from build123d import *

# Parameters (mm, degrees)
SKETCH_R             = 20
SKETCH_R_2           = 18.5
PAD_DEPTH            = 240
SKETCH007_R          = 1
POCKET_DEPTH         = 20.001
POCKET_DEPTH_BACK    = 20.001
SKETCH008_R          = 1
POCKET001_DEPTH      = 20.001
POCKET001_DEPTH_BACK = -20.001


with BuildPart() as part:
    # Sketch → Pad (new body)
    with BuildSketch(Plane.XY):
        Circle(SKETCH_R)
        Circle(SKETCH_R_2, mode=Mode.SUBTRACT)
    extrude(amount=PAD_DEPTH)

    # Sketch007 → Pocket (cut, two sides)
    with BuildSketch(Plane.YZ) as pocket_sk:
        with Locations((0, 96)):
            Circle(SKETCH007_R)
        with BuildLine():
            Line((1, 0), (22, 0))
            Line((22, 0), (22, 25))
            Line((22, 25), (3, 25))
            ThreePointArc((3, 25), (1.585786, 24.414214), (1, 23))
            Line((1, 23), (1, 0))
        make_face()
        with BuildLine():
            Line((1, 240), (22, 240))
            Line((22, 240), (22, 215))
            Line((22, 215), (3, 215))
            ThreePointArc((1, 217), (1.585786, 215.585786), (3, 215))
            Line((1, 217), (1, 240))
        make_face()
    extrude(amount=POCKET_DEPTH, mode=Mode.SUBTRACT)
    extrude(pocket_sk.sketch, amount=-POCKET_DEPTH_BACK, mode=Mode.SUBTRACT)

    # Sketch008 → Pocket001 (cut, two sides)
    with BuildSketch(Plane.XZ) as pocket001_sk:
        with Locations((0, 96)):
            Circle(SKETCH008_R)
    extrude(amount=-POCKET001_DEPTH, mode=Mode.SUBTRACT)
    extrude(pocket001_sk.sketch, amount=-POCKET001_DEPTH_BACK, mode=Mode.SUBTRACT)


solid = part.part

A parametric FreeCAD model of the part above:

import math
import FreeCAD as App
import Part
import Sketcher

V = App.Vector

doc = App.newDocument("Part")
body = doc.addObject("PartDesign::Body", "Body")

# Sketch on XY plane
sketch1 = doc.addObject("Sketcher::SketchObject", "Sketch")
body.addObject(sketch1)
sketch1.AttachmentSupport = (doc.XY_Plane, [""])
sketch1.MapMode = "FlatFace"
sketch1.addGeometry(Part.Circle(V(0, 0, 0), V(0, 0, 1), 20), False)
sketch1.addGeometry(Part.Circle(V(0, 0, 0), V(0, 0, 1), 18), False)
sketch1.addConstraint(Sketcher.Constraint("Coincident", 0, 3, -1, 1))
sketch1.addConstraint(Sketcher.Constraint("Coincident", 1, 3, -1, 1))
sketch1.addConstraint(Sketcher.Constraint("Diameter", 0, 40.0))
sketch1.addConstraint(Sketcher.Constraint("Diameter", 1, 37.0))
pad1 = doc.addObject("PartDesign::Pad", "Pad")
body.addObject(pad1)
pad1.Profile = sketch1
pad1.Length = 240

# Sketch on YZ plane
sketch2 = doc.addObject("Sketcher::SketchObject", "Sketch001")
body.addObject(sketch2)
sketch2.AttachmentSupport = (doc.YZ_Plane, [""])
sketch2.MapMode = "FlatFace"
sketch2.addGeometry(Part.Circle(V(0, 96, 0), V(0, 0, 1), 1), False)
sketch2.addGeometry(Part.LineSegment(V(1, 0, 0), V(22, 0, 0)), False)
sketch2.addGeometry(Part.LineSegment(V(22, 0, 0), V(22, 25, 0)), False)
sketch2.addGeometry(Part.LineSegment(V(22, 25, 0), V(3, 25, 0)), False)
sketch2.addGeometry(Part.ArcOfCircle(Part.Circle(V(3, 23, 0), V(0, 0, 1), 2), math.radians(90), math.radians(180)), False)
sketch2.addGeometry(Part.LineSegment(V(1, 23, 0), V(1, 0, 0)), False)
sketch2.addGeometry(Part.LineSegment(V(22, 240, 0), V(1, 240, 0)), False)
sketch2.addGeometry(Part.LineSegment(V(1, 240, 0), V(1, 217, 0)), False)
sketch2.addGeometry(Part.ArcOfCircle(Part.Circle(V(3, 217, 0), V(0, 0, 1), 2), math.radians(180), math.radians(270)), False)
sketch2.addGeometry(Part.LineSegment(V(3, 215, 0), V(22, 215, 0)), False)
sketch2.addGeometry(Part.LineSegment(V(22, 215, 0), V(22, 240, 0)), False)
sketch2.addConstraint(Sketcher.Constraint("Coincident", 1, 2, 2, 1))
sketch2.addConstraint(Sketcher.Constraint("Coincident", 2, 2, 3, 1))
sketch2.addConstraint(Sketcher.Constraint("Tangent", 3, 2, 4, 1))
sketch2.addConstraint(Sketcher.Constraint("Tangent", 4, 2, 5, 1))
sketch2.addConstraint(Sketcher.Constraint("Coincident", 5, 2, 1, 1))
sketch2.addConstraint(Sketcher.Constraint("Coincident", 6, 2, 7, 1))
sketch2.addConstraint(Sketcher.Constraint("Tangent", 7, 2, 8, 1))
sketch2.addConstraint(Sketcher.Constraint("Tangent", 8, 2, 9, 1))
sketch2.addConstraint(Sketcher.Constraint("Coincident", 9, 2, 10, 1))
sketch2.addConstraint(Sketcher.Constraint("Coincident", 10, 2, 6, 1))
sketch2.addConstraint(Sketcher.Constraint("Horizontal", 1))
sketch2.addConstraint(Sketcher.Constraint("Vertical", 2))
sketch2.addConstraint(Sketcher.Constraint("Horizontal", 3))
sketch2.addConstraint(Sketcher.Constraint("Vertical", 5))
sketch2.addConstraint(Sketcher.Constraint("Horizontal", 6))
sketch2.addConstraint(Sketcher.Constraint("Vertical", 7))
sketch2.addConstraint(Sketcher.Constraint("Horizontal", 9))
sketch2.addConstraint(Sketcher.Constraint("Vertical", 10))
sketch2.addConstraint(Sketcher.Constraint("Equal", 4, 8))
sketch2.addConstraint(Sketcher.Constraint("PointOnObject", 0, 3, -2))
sketch2.addConstraint(Sketcher.Constraint("PointOnObject", 1, 2, -1))
sketch2.addConstraint(Sketcher.Constraint("Vertical", 4, 3, 8, 3))
sketch2.addConstraint(Sketcher.Constraint("Vertical", 2, 2, 9, 2))
sketch2.addConstraint(Sketcher.Constraint("Equal", 5, 7))
sketch2.addConstraint(Sketcher.Constraint("Diameter", 0, 2.0))
sketch2.addConstraint(Sketcher.Constraint("Radius", 4, 1.999999))
sketch2.addConstraint(Sketcher.Constraint("DistanceX", 1, 1, 1, 2, 21.0))
sketch2.addConstraint(Sketcher.Constraint("DistanceY", 2, 1, 2, 2, 25.0))
sketch2.addConstraint(Sketcher.Constraint("DistanceY", -1, 1, 0, 3, 96.0))
sketch2.addConstraint(Sketcher.Constraint("DistanceX", -1, 1, 4, 3, 2.999999))
sketch2.addConstraint(Sketcher.Constraint("DistanceY", -1, 1, 8, 3, 216.999999))
pocket1 = doc.addObject("PartDesign::Pocket", "Pocket")
body.addObject(pocket1)
pocket1.Profile = sketch2
pocket1.Type = "ThroughAll"
pocket1.Midplane = True

# Sketch on XZ plane
sketch3 = doc.addObject("Sketcher::SketchObject", "Sketch002")
body.addObject(sketch3)
sketch3.AttachmentSupport = (doc.XZ_Plane, [""])
sketch3.MapMode = "FlatFace"
sketch3.addGeometry(Part.Circle(V(0, 96, 0), V(0, 0, 1), 1), False)
sketch3.addConstraint(Sketcher.Constraint("PointOnObject", 0, 3, -2))
sketch3.addConstraint(Sketcher.Constraint("Diameter", 0, 2.0))
sketch3.addConstraint(Sketcher.Constraint("DistanceY", -1, 1, 0, 3, 96.0))
pocket2 = doc.addObject("PartDesign::Pocket", "Pocket001")
body.addObject(pocket2)
pocket2.Profile = sketch3
pocket2.Type = "ThroughAll"
pocket2.Midplane = True

doc.recompute()
